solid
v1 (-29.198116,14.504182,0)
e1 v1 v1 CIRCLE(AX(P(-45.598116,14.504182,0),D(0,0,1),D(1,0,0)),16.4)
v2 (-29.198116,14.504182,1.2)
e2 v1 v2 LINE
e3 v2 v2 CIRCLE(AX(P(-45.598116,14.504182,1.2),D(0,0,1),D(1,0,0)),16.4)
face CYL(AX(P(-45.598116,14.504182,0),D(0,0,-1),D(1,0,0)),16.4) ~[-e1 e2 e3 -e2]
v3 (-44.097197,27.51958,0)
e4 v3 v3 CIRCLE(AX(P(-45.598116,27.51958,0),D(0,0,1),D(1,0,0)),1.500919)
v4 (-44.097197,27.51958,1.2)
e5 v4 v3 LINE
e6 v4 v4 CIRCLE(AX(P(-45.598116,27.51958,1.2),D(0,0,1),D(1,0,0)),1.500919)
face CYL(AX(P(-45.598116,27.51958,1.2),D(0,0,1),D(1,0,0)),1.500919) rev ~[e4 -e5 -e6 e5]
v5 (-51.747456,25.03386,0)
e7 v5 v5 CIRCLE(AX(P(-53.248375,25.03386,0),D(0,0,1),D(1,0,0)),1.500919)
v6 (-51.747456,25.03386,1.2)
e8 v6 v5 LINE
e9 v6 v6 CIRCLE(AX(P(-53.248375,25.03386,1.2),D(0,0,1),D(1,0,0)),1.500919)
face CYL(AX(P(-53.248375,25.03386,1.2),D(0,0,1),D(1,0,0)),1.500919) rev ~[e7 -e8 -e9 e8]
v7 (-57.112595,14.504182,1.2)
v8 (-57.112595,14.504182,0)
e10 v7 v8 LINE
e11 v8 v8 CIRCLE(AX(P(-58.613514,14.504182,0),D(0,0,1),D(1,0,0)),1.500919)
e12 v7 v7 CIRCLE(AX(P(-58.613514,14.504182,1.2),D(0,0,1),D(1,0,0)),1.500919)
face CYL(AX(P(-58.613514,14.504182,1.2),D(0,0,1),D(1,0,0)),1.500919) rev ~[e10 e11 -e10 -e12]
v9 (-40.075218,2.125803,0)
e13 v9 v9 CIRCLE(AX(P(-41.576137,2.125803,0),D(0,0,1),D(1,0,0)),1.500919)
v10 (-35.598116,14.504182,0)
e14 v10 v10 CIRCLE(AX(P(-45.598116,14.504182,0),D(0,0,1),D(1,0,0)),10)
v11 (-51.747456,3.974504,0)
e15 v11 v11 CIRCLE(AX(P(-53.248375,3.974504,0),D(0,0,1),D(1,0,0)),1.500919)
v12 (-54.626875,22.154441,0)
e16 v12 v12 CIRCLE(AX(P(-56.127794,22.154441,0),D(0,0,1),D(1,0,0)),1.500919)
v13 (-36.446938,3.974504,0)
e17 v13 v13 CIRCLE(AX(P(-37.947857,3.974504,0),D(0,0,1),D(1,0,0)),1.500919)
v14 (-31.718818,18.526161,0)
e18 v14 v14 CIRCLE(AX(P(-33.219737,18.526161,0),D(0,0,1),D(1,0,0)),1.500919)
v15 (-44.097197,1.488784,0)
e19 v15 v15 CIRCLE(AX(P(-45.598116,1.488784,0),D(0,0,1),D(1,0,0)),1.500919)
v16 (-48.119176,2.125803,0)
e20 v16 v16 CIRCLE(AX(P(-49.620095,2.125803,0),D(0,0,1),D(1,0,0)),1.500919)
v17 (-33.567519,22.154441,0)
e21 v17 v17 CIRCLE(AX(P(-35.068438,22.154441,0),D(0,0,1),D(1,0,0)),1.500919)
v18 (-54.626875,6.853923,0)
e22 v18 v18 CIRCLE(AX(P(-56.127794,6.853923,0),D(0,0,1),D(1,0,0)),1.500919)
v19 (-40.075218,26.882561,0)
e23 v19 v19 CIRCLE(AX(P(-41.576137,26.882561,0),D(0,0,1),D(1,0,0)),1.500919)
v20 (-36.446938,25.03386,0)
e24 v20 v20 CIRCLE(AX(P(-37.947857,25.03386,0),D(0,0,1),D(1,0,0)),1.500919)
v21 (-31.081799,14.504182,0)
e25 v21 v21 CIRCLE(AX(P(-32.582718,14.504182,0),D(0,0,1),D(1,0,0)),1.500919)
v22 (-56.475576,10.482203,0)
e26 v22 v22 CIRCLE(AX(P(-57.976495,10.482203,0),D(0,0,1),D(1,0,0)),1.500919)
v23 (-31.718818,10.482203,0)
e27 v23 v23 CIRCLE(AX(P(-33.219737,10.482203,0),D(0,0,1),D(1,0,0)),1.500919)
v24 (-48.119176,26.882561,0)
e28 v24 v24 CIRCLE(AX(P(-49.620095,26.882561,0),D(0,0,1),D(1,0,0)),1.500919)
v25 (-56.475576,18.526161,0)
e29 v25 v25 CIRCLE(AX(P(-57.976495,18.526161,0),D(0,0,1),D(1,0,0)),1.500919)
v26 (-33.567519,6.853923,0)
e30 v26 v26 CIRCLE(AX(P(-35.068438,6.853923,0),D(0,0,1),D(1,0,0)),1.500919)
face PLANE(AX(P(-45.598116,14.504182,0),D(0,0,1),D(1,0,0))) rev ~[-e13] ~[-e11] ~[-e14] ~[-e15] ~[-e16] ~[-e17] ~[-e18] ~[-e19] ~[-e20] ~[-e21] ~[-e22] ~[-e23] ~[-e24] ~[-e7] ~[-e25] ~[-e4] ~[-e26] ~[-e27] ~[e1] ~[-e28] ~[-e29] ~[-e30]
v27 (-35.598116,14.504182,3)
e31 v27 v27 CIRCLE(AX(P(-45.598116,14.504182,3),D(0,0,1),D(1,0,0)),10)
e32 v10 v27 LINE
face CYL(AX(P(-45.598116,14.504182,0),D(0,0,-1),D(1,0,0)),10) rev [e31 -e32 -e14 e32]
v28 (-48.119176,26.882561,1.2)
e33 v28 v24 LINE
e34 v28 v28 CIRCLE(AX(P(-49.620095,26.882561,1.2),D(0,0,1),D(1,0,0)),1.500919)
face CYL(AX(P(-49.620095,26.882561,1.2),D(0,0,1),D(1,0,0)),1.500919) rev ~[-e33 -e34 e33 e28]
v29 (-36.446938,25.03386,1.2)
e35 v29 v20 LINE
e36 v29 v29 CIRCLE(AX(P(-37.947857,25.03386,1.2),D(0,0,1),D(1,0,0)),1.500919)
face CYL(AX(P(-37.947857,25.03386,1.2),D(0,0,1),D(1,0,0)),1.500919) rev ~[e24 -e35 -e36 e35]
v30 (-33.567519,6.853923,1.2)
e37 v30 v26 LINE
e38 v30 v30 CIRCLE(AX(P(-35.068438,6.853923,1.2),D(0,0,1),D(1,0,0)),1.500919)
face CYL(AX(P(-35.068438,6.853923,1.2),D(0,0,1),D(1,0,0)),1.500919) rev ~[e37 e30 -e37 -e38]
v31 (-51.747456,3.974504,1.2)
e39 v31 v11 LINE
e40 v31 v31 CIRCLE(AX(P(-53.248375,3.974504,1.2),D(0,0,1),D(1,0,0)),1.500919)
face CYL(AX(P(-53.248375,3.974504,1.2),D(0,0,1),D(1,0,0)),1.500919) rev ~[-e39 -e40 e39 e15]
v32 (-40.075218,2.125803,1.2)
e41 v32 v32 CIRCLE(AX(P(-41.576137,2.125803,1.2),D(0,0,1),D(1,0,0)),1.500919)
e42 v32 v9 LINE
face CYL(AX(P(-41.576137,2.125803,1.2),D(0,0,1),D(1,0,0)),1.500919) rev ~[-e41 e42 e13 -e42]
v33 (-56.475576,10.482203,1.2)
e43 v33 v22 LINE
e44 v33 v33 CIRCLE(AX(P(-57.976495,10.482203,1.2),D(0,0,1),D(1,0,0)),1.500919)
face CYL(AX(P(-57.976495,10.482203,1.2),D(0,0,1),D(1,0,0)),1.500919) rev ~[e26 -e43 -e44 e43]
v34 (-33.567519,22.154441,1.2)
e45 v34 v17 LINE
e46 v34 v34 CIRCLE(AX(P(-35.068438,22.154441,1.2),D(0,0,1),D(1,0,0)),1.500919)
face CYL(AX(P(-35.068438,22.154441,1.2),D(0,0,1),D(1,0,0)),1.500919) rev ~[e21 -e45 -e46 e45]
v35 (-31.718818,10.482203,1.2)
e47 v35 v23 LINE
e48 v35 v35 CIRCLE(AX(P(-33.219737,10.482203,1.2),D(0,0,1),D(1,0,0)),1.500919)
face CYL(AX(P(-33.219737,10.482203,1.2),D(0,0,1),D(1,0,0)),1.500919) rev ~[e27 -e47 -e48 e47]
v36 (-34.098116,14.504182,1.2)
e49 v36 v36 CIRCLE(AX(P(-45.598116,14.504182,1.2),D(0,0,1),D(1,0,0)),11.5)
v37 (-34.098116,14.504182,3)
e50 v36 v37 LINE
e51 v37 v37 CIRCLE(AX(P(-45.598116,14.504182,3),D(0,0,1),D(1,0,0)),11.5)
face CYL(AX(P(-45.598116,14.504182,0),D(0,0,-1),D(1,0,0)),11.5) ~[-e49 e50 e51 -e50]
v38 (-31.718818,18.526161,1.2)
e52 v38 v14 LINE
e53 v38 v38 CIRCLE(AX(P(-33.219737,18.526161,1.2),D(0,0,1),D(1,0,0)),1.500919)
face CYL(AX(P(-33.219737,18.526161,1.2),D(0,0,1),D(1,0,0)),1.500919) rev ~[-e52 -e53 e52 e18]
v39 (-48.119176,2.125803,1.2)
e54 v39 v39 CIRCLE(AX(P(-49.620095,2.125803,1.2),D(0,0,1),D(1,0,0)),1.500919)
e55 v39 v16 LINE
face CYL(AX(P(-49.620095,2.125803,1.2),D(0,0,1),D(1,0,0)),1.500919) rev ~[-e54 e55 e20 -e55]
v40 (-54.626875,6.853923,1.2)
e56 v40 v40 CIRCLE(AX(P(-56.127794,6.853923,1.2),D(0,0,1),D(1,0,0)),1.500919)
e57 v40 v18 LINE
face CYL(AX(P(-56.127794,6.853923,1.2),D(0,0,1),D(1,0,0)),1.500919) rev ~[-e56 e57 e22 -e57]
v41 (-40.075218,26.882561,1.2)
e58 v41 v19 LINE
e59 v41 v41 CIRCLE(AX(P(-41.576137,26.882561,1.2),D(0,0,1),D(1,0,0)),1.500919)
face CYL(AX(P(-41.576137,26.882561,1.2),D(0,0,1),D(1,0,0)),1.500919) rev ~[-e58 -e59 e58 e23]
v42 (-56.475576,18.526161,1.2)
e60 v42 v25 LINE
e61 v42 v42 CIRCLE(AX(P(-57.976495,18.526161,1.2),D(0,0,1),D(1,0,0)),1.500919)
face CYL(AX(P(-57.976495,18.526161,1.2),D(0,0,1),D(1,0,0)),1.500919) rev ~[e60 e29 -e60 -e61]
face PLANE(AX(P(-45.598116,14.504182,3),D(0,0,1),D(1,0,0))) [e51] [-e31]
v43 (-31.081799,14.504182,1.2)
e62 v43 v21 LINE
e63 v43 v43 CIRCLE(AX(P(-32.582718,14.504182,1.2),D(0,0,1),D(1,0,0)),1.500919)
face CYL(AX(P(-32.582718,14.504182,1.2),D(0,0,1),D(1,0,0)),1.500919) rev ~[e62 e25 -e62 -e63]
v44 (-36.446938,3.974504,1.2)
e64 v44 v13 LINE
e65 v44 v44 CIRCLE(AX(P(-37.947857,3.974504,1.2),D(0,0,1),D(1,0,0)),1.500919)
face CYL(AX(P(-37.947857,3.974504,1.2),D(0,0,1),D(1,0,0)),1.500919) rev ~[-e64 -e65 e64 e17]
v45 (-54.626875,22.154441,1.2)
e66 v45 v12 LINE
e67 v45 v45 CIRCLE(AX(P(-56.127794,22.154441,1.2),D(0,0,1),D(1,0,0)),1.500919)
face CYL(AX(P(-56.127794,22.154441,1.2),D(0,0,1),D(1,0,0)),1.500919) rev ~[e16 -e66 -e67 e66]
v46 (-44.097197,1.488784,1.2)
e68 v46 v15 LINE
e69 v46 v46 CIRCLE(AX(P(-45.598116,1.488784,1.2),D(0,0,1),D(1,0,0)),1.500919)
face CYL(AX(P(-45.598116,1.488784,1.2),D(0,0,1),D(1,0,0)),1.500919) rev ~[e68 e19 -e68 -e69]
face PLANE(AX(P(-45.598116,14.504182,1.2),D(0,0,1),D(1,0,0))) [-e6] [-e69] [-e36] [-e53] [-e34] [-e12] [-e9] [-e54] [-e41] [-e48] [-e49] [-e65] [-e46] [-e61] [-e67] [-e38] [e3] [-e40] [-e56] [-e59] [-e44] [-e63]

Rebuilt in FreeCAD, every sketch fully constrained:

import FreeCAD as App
import Part
import Sketcher

V = App.Vector
Q = App.Units.Quantity

doc = App.newDocument("Part")
body = doc.addObject("PartDesign::Body", "Body")

# Sketch on XY plane
sketch1 = body.newObject("Sketcher::SketchObject", "Sketch")
sketch1.AttachmentSupport = (doc.getObject("XY_Plane"), [""])
sketch1.MapMode = "FlatFace"
sketch1.addGeometry([
    Part.Circle(V(-45.598116, 14.504182, 0), V(0, 0, 1), 16.4),
    Part.Circle(V(-45.598116, 14.504182, 0), V(0, 0, 1), 11.5),
], False)
sketch1.addConstraint([
    Sketcher.Constraint("Coincident", 1, 3, 0, 3),
    Sketcher.Constraint("Diameter", 1, Q("23 mm")),
    Sketcher.Constraint("Diameter", 0, Q("32.8 mm")),
    Sketcher.Constraint("DistanceX", 0, 3, -1, 1, Q("45.598116 mm")),
    Sketcher.Constraint("DistanceY", -1, 1, 0, 3, Q("14.504182 mm")),
])
pad1 = body.newObject("PartDesign::Pad", "Pad")
pad1.Profile = sketch1
pad1.Length = 1.2

# Sketch on XY plane
sketch2 = body.newObject("Sketcher::SketchObject", "Sketch001")
sketch2.AttachmentSupport = (doc.getObject("XY_Plane"), [""])
sketch2.MapMode = "FlatFace"
sketch2.addGeometry([
    Part.Circle(V(-45.598116, 14.504182, 0), V(0, 0, 1), 11.5),
    Part.Circle(V(-45.598116, 14.504182, 0), V(0, 0, 1), 10),
], False)
sketch2.addConstraint([
    Sketcher.Constraint("Coincident", 1, 3, 0, 3),
    Sketcher.Constraint("Diameter", 0, Q("23 mm")),
    Sketcher.Constraint("Diameter", 1, Q("20 mm")),
    Sketcher.Constraint("DistanceX", 0, 3, -1, 1, Q("45.598116 mm")),
    Sketcher.Constraint("DistanceY", -1, 1, 0, 3, Q("14.504182 mm")),
])
pad2 = body.newObject("PartDesign::Pad", "Pad001")
pad2.Profile = sketch2
pad2.Length = 3

# Sketch on XY plane
sketch3 = body.newObject("Sketcher::SketchObject", "Sketch002")
sketch3.AttachmentSupport = (doc.getObject("XY_Plane"), [""])
sketch3.MapMode = "FlatFace"
sketch3.AttachmentOffset = App.Placement(V(0, 0, 1.2), App.Rotation())
sketch3.addGeometry([
    Part.Circle(V(-45.598116, 27.51958, 0), V(0, 0, 1), 1.500919),  # 0
    Part.Circle(V(-49.620095, 26.882561, 0), V(0, 0, 1), 1.500919),  # 1
    Part.Circle(V(-53.248375, 25.03386, 0), V(0, 0, 1), 1.500919),  # 2
    Part.Circle(V(-56.127794, 22.154441, 0), V(0, 0, 1), 1.500919),  # 3
    Part.Circle(V(-57.976495, 18.526161, 0), V(0, 0, 1), 1.500919),  # 4
    Part.Circle(V(-58.613514, 14.504182, 0), V(0, 0, 1), 1.500919),  # 5
    Part.Circle(V(-57.976495, 10.482203, 0), V(0, 0, 1), 1.500919),  # 6
    Part.Circle(V(-56.127794, 6.853923, 0), V(0, 0, 1), 1.500919),  # 7
    Part.Circle(V(-53.248375, 3.974504, 0), V(0, 0, 1), 1.500919),  # 8
    Part.Circle(V(-49.620095, 2.125803, 0), V(0, 0, 1), 1.500919),  # 9
    Part.Circle(V(-45.598116, 1.488784, 0), V(0, 0, 1), 1.500919),  # 10
    Part.Circle(V(-41.576137, 2.125803, 0), V(0, 0, 1), 1.500919),  # 11
    Part.Circle(V(-37.947857, 3.974504, 0), V(0, 0, 1), 1.500919),  # 12
    Part.Circle(V(-35.068438, 6.853923, 0), V(0, 0, 1), 1.500919),  # 13
    Part.Circle(V(-33.219737, 10.482203, 0), V(0, 0, 1), 1.500919),  # 14
    Part.Circle(V(-32.582718, 14.504182, 0), V(0, 0, 1), 1.500919),  # 15
    Part.Circle(V(-33.219737, 18.526161, 0), V(0, 0, 1), 1.500919),  # 16
    Part.Circle(V(-35.068438, 22.154441, 0), V(0, 0, 1), 1.500919),  # 17
    Part.Circle(V(-37.947857, 25.03386, 0), V(0, 0, 1), 1.500919),  # 18
    Part.Circle(V(-41.576137, 26.882561, 0), V(0, 0, 1), 1.500919),  # 19
], False)
sketch3.addConstraint([
    Sketcher.Constraint("Equal", 0, 1),
    Sketcher.Constraint("Equal", 1, 2),
    Sketcher.Constraint("Equal", 2, 3),
    Sketcher.Constraint("Equal", 3, 4),
    Sketcher.Constraint("Equal", 4, 5),
    Sketcher.Constraint("Equal", 5, 6),
    Sketcher.Constraint("Equal", 6, 7),
    Sketcher.Constraint("Equal", 7, 8),
    Sketcher.Constraint("Equal", 8, 9),
    Sketcher.Constraint("Equal", 9, 10),
    Sketcher.Constraint("Equal", 10, 11),
    Sketcher.Constraint("Equal", 11, 12),
    Sketcher.Constraint("Equal", 12, 13),
    Sketcher.Constraint("Equal", 13, 14),
    Sketcher.Constraint("Equal", 14, 15),
    Sketcher.Constraint("Equal", 15, 16),
    Sketcher.Constraint("Equal", 16, 17),
    Sketcher.Constraint("Equal", 17, 18),
    Sketcher.Constraint("Equal", 18, 19),
    Sketcher.Constraint("Horizontal", 9, 3, 11, 3),
    Sketcher.Constraint("Horizontal", 8, 3, 12, 3),
    Sketcher.Constraint("Horizontal", 7, 3, 13, 3),
    Sketcher.Constraint("Horizontal", 6, 3, 14, 3),
    Sketcher.Constraint("Horizontal", 5, 3, 15, 3),
    Sketcher.Constraint("Horizontal", 4, 3, 16, 3),
    Sketcher.Constraint("Horizontal", 3, 3, 17, 3),
    Sketcher.Constraint("Horizontal", 2, 3, 18, 3),
    Sketcher.Constraint("Horizontal", 1, 3, 19, 3),
    Sketcher.Constraint("Vertical", 4, 3, 6, 3),
    Sketcher.Constraint("Vertical", 3, 3, 7, 3),
    Sketcher.Constraint("Vertical", 2, 3, 8, 3),
    Sketcher.Constraint("Vertical", 1, 3, 9, 3),
    Sketcher.Constraint("Vertical", 0, 3, 10, 3),
    Sketcher.Constraint("Vertical", 14, 3, 16, 3),
    Sketcher.Constraint("Vertical", 13, 3, 17, 3),
    Sketcher.Constraint("Vertical", 12, 3, 18, 3),
    Sketcher.Constraint("Vertical", 11, 3, 19, 3),
    Sketcher.Constraint("Diameter", 0, Q("3.001838 mm")),
    Sketcher.Constraint("DistanceY", 2, 3, 1, 3, Q("1.848701 mm")),
    Sketcher.Constraint("DistanceX", 3, 3, 1, 3, Q("6.507699 mm")),
    Sketcher.Constraint("DistanceX", 4, 3, 3, 3, Q("1.848701 mm")),
    Sketcher.Constraint("DistanceY", 4, 3, 2, 3, Q("6.507699 mm")),
    Sketcher.Constraint("DistanceX", 5, 3, 0, 3, Q("13.015398 mm")),
    Sketcher.Constraint("DistanceY", 5, 3, 0, 3, Q("13.015398 mm")),
    Sketcher.Constraint("DistanceY", 8, 3, 6, 3, Q("6.507699 mm")),
    Sketcher.Constraint("DistanceY", 9, 3, 8, 3, Q("1.848701 mm")),
    Sketcher.Constraint("DistanceX", 11, 3, 13, 3, Q("6.507699 mm")),
    Sketcher.Constraint("DistanceX", 13, 3, 14, 3, Q("1.848701 mm")),
    Sketcher.Constraint("DistanceY", -1, 1, 0, 3, Q("27.51958 mm")),
    Sketcher.Constraint("DistanceY", -1, 1, 1, 3, Q("26.882561 mm")),
    Sketcher.Constraint("DistanceY", -1, 1, 3, 3, Q("22.154441 mm")),
    Sketcher.Constraint("DistanceX", 1, 3, 0, 3, Q("4.021979 mm")),
    Sketcher.Constraint("DistanceX", 2, 3, 1, 3, Q("3.62828 mm")),
    Sketcher.Constraint("DistanceY", 6, 3, 5, 3, Q("4.021979 mm")),
    Sketcher.Constraint("DistanceY", 7, 3, 6, 3, Q("3.62828 mm")),
    Sketcher.Constraint("DistanceY", 10, 3, 9, 3, Q("0.637019 mm")),
    Sketcher.Constraint("DistanceX", 10, 3, 11, 3, Q("4.021979 mm")),
    Sketcher.Constraint("DistanceX", 11, 3, 12, 3, Q("3.62828 mm")),
    Sketcher.Constraint("DistanceX", 14, 3, 15, 3, Q("0.637019 mm")),
    Sketcher.Constraint("DistanceX", 0, 3, -1, 1, Q("45.598116 mm")),
])
pocket1 = body.newObject("PartDesign::Pocket", "Pocket")
pocket1.Profile = sketch3
pocket1.Length = 25

doc.recompute()
